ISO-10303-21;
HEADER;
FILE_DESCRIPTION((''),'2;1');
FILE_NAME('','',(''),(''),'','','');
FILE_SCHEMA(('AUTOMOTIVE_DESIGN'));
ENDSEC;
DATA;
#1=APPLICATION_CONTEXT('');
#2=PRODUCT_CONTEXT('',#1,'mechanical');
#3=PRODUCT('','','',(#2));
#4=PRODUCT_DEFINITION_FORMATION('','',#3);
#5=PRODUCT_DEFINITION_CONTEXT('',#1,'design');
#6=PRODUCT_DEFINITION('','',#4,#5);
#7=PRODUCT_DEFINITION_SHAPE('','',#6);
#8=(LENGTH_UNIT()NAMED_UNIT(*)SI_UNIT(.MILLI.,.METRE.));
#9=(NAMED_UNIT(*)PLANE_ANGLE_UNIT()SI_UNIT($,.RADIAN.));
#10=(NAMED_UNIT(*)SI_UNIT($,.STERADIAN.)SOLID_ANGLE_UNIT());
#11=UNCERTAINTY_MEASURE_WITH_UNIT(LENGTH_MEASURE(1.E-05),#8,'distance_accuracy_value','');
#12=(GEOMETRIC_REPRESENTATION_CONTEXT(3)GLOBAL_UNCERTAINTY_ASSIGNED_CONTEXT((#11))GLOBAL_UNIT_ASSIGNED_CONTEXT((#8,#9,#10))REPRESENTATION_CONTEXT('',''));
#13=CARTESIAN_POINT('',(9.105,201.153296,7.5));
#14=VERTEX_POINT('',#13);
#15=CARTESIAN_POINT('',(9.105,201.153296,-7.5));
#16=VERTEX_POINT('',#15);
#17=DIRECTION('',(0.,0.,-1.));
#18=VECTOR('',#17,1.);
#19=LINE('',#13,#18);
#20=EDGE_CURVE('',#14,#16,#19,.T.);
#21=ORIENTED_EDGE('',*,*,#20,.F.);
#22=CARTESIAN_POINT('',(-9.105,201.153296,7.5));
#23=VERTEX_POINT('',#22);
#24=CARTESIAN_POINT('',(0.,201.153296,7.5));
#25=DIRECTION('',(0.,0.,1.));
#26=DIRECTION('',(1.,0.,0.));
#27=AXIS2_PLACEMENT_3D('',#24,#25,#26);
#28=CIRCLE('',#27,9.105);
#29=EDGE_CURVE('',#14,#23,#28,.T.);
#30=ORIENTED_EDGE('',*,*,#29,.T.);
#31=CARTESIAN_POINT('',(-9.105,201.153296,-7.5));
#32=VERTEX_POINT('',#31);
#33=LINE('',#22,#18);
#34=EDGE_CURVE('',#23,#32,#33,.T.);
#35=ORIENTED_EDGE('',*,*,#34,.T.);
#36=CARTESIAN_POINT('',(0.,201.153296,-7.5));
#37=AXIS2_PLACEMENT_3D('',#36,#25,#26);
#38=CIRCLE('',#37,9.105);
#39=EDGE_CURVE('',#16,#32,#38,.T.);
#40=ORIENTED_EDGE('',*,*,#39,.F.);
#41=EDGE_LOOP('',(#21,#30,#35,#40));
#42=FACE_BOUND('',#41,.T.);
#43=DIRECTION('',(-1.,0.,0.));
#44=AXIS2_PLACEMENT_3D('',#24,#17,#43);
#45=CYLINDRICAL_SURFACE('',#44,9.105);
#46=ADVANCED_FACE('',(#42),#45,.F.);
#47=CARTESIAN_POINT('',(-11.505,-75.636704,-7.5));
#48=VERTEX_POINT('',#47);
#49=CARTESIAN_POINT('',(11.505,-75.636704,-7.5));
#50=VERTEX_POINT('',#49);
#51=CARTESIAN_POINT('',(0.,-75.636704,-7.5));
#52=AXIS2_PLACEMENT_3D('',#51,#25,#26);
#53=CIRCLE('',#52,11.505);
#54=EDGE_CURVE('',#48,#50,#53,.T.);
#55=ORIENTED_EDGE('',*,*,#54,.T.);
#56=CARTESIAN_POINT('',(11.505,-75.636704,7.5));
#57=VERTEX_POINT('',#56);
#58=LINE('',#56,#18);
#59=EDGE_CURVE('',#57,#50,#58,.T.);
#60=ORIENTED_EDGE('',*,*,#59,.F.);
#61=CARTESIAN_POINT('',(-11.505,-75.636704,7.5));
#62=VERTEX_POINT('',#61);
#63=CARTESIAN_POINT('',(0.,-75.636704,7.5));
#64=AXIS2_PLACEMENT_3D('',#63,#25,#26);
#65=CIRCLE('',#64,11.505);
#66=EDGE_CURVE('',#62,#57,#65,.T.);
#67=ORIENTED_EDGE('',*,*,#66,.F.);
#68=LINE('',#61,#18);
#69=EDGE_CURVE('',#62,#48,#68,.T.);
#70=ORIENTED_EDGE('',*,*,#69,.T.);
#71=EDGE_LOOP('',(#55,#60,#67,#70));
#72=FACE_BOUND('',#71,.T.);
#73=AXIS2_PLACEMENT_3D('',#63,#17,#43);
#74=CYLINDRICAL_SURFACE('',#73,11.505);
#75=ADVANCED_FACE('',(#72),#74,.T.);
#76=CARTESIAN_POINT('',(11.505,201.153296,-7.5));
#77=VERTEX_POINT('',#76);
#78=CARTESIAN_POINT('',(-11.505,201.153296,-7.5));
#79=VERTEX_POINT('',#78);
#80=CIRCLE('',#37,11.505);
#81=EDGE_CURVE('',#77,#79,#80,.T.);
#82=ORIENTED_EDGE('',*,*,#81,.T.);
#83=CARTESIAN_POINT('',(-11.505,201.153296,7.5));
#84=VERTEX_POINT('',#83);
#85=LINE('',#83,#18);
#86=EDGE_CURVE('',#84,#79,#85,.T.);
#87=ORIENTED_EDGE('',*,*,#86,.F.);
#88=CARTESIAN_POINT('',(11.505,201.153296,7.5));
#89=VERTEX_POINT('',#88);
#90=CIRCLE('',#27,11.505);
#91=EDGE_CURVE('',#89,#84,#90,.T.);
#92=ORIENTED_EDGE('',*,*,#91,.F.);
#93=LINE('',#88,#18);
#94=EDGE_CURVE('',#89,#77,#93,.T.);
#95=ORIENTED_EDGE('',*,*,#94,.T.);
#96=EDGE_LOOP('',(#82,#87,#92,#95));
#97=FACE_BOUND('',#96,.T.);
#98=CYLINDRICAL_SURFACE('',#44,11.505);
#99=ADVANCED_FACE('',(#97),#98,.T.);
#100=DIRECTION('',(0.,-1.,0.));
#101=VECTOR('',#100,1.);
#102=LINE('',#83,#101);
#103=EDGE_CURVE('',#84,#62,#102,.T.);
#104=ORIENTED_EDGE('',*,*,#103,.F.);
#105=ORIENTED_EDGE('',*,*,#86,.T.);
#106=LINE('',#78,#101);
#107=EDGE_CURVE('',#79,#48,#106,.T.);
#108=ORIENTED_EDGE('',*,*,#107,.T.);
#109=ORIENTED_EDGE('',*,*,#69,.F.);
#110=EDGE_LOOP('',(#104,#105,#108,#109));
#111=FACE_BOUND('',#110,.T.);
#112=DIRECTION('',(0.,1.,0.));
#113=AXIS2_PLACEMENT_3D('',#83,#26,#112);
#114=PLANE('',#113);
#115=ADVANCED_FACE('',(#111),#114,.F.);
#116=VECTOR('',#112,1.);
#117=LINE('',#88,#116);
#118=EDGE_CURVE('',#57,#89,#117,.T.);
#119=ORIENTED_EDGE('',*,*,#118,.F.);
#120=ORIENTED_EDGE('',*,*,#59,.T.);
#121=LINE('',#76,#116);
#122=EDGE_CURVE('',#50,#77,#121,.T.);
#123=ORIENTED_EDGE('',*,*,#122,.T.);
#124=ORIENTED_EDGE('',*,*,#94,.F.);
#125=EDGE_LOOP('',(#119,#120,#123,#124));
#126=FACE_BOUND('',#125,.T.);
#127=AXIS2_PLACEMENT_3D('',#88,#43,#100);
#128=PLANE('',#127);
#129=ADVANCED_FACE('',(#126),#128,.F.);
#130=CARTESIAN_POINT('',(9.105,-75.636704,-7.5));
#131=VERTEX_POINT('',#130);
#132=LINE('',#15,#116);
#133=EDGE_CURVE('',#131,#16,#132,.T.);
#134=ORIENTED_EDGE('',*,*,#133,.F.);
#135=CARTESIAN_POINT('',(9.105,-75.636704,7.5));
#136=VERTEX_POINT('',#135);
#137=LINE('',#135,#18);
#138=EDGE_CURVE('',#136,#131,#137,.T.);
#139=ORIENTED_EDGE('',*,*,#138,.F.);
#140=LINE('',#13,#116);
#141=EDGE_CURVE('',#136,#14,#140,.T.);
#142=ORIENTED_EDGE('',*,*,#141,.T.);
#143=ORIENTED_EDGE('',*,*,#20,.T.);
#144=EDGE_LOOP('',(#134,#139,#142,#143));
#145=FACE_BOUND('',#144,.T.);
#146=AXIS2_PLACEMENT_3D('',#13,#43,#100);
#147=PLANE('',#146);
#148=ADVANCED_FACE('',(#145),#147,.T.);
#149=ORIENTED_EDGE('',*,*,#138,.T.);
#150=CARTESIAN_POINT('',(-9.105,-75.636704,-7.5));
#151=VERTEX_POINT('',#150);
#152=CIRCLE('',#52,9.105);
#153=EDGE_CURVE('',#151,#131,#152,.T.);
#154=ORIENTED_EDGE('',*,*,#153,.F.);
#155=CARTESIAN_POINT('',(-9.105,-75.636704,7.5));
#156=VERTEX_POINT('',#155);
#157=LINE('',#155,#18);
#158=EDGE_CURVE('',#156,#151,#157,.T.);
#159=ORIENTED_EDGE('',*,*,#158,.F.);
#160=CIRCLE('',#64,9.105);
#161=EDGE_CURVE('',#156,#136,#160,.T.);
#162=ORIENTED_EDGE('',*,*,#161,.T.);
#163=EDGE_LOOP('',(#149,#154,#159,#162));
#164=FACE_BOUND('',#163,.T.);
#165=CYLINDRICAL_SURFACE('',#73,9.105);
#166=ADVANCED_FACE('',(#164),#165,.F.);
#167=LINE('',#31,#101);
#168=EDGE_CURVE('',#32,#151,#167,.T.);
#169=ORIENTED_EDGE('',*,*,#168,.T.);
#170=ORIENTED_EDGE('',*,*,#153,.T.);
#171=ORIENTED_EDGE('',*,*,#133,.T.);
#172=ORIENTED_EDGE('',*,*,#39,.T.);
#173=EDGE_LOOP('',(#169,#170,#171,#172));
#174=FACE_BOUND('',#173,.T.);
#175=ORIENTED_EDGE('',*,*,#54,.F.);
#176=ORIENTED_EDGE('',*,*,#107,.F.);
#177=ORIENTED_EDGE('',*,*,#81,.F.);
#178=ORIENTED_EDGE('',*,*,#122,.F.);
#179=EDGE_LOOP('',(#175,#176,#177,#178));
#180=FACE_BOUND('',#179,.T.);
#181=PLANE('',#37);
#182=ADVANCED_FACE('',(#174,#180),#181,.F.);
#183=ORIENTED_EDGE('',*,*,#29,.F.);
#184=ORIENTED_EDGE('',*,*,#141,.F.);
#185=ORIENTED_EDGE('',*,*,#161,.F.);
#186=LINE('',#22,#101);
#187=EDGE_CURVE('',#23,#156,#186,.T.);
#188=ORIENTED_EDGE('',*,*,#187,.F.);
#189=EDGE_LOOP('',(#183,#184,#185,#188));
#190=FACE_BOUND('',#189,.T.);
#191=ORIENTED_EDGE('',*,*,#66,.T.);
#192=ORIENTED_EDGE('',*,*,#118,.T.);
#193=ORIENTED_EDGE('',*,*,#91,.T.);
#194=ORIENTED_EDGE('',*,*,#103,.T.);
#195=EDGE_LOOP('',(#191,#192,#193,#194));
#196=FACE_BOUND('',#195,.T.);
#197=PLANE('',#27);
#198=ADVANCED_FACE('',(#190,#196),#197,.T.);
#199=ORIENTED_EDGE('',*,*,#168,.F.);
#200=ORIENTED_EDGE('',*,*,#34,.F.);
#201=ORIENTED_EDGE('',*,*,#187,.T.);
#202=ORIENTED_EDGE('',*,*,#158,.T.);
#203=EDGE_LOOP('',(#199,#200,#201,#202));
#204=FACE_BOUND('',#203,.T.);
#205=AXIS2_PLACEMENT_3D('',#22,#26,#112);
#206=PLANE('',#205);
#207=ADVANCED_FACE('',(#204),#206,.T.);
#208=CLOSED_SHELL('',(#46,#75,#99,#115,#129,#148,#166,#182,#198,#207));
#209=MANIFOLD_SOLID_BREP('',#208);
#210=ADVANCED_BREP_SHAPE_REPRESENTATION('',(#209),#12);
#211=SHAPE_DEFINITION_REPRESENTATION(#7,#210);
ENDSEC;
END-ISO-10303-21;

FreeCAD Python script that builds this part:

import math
import FreeCAD as App
import Part
import Sketcher
from FreeCAD import Vector

doc = App.newDocument("Part")
body = doc.addObject("PartDesign::Body", "Body")

# Sketch on XY plane
sketch1 = body.newObject("Sketcher::SketchObject", "Sketch")
sketch1.AttachmentSupport = (doc.getObject("XY_Plane"), [""])
sketch1.MapMode = "FlatFace"
sketch1.addGeometry([
    Part.LineSegment(Vector(12, -76, 0), Vector(12, 201, 0)),  # 0
    Part.ArcOfCircle(Part.Circle(Vector(0, 201, 0), Vector(0, 0, 1), 12), math.radians(0), math.radians(180)),  # 1
    Part.LineSegment(Vector(-12, 201, 0), Vector(-12, -76, 0)),  # 2
    Part.ArcOfCircle(Part.Circle(Vector(0, -76, 0), Vector(0, 0, 1), 12), math.radians(180), math.radians(360)),  # 3
    Part.LineSegment(Vector(9, 201, 0), Vector(9, -76, 0)),  # 4
    Part.ArcOfCircle(Part.Circle(Vector(0, -76, 0), Vector(0, 0, 1), 9), math.radians(180), math.radians(360)),  # 5
    Part.LineSegment(Vector(-9, -76, 0), Vector(-9, 201, 0)),  # 6
    Part.ArcOfCircle(Part.Circle(Vector(0, 201, 0), Vector(0, 0, 1), 9), math.radians(0), math.radians(180)),  # 7
], False)
sketch1.addConstraint([
    Sketcher.Constraint("Tangent", 0, 2, 1, 1),
    Sketcher.Constraint("Tangent", 1, 2, 2, 1),
    Sketcher.Constraint("Tangent", 2, 2, 3, 1),
    Sketcher.Constraint("Tangent", 3, 2, 0, 1),
    Sketcher.Constraint("Tangent", 4, 2, 5, 2),
    Sketcher.Constraint("Tangent", 5, 1, 6, 1),
    Sketcher.Constraint("Tangent", 6, 2, 7, 2),
    Sketcher.Constraint("Tangent", 7, 1, 4, 1),
    Sketcher.Constraint("Vertical", 0),
    Sketcher.Constraint("Vertical", 2),
    Sketcher.Constraint("Vertical", 4),
    Sketcher.Constraint("Vertical", 6),
    Sketcher.Constraint("Coincident", 5, 3, 3, 3),
    Sketcher.Constraint("PointOnObject", 1, 3, -2),
    Sketcher.Constraint("Horizontal", 7, 3, 0, 2),
    Sketcher.Constraint("Radius", 1, 11.505),
    Sketcher.Constraint("Radius", 5, 9.105),
    Sketcher.Constraint("DistanceY", 0, 1, 0, 2, 276.79),
    Sketcher.Constraint("DistanceY", -1, 1, 1, 3, 201.153296),
])
pad1 = body.newObject("PartDesign::Pad", "Pad")
pad1.Profile = sketch1
pad1.Length = 15
pad1.Midplane = True

doc.recompute()
